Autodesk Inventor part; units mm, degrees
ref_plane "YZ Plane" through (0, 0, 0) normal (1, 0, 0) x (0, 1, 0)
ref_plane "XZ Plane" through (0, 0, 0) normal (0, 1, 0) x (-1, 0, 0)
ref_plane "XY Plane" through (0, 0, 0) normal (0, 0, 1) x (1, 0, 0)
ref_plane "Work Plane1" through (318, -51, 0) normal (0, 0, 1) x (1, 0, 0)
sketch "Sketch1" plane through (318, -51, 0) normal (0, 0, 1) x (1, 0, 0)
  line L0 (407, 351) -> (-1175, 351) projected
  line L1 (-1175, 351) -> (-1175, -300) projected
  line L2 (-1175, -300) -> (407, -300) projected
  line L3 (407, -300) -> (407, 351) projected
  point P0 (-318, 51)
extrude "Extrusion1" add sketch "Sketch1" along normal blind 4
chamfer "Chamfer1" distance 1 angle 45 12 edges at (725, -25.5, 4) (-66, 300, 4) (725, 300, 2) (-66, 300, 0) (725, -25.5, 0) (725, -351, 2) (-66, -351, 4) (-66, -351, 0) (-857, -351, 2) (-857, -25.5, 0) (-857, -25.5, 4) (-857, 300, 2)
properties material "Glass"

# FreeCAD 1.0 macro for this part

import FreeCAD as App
import Part
import Sketcher


def add_polygon(sketch, points):
    """Adds a closed chain of lines whose ends are joined by coincident constraints."""
    first, n = sketch.GeometryCount, len(points)
    for a, b in zip(points, points[1:] + points[:1]):
        sketch.addGeometry(Part.LineSegment(App.Vector(*a, 0), App.Vector(*b, 0)), False)
    for i in range(n):
        sketch.addConstraint(Sketcher.Constraint("Coincident", first + i, 2, first + (i + 1) % n, 1))

doc = App.newDocument("Part")
body = doc.addObject("PartDesign::Body", "Body")

# Sketch on XY plane
sketch1 = body.newObject("Sketcher::SketchObject", "Sketch")
sketch1.AttachmentSupport = (doc.getObject("XY_Plane"), [""])
sketch1.MapMode = "FlatFace"
add_polygon(sketch1, [(725, -351), (725, 300), (-857, 300), (-857, -351)])  # lines 0-3
sketch1.addConstraint([
    Sketcher.Constraint("Vertical", 0),
    Sketcher.Constraint("Horizontal", 1),
    Sketcher.Constraint("Vertical", 2),
    Sketcher.Constraint("Horizontal", 3),
    Sketcher.Constraint("DistanceX", 1, 2, 1, 1, 1582.0),
    Sketcher.Constraint("DistanceY", 0, 1, 0, 2, 651.0),
    Sketcher.Constraint("DistanceX", -1, 1, 0, 2, 725.0),
    Sketcher.Constraint("DistanceY", -1, 1, 0, 2, 300.0),
])
pad1 = body.newObject("PartDesign::Pad", "Pad")
pad1.Profile = sketch1
pad1.Length = 4
doc.recompute()

chamfer = body.newObject("PartDesign::Chamfer", "Chamfer")
chamfer.Base = (pad1, ["Edge1"])
chamfer.UseAllEdges = True
chamfer.Size = 1

doc.recompute()
